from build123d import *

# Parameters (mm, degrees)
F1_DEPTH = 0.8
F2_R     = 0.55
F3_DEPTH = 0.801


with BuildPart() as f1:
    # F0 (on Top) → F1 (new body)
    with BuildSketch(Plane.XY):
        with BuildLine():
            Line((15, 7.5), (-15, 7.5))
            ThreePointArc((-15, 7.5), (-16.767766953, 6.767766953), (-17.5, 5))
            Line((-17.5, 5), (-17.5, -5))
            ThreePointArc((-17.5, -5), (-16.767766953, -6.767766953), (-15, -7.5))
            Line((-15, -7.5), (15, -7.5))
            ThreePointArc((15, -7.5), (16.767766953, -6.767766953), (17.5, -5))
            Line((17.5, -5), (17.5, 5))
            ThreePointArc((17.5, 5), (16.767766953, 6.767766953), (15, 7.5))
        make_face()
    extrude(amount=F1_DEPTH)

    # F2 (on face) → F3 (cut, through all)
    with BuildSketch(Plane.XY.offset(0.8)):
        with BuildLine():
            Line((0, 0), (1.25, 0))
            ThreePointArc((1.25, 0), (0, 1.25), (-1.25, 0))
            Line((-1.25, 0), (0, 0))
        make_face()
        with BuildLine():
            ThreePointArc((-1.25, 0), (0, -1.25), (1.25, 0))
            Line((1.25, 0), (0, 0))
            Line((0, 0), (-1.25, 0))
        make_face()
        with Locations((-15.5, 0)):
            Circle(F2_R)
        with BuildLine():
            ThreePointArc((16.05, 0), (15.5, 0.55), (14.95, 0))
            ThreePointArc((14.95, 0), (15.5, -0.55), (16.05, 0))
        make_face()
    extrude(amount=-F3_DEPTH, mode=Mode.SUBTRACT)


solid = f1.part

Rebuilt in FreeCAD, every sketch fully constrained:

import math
import FreeCAD as App
import Part
import Sketcher

doc = App.newDocument("Part")
body = doc.addObject("PartDesign::Body", "Body")

sketch1 = body.newObject("Sketcher::SketchObject", "Sketch")
sketch1.AttachmentSupport = (doc.getObject("XY_Plane"), [""])
sketch1.MapMode = "FlatFace"
sketch1.addGeometry([
    Part.LineSegment(App.Vector(15, 7.5, 0), App.Vector(-15, 7.5, 0)),
    Part.ArcOfCircle(Part.Circle(App.Vector(-15, 5, 0), App.Vector(0, 0, 1), 2.5), math.radians(90), math.radians(180)),
    Part.LineSegment(App.Vector(-17.5, 5, 0), App.Vector(-17.5, -5, 0)),
    Part.ArcOfCircle(Part.Circle(App.Vector(-15, -5, 0), App.Vector(0, 0, 1), 2.5), math.radians(180), math.radians(270)),
    Part.LineSegment(App.Vector(-15, -7.5, 0), App.Vector(15, -7.5, 0)),
    Part.ArcOfCircle(Part.Circle(App.Vector(15, -5, 0), App.Vector(0, 0, 1), 2.5), math.radians(-90), math.radians(0)),
    Part.LineSegment(App.Vector(17.5, -5, 0), App.Vector(17.5, 5, 0)),
    Part.ArcOfCircle(Part.Circle(App.Vector(15, 5, 0), App.Vector(0, 0, 1), 2.5), math.radians(0), math.radians(90)),
], False)
sketch1.addConstraint([
    Sketcher.Constraint("Tangent", 0, 2, 1, 1),
    Sketcher.Constraint("Tangent", 1, 2, 2, 1),
    Sketcher.Constraint("Tangent", 2, 2, 3, 1),
    Sketcher.Constraint("Tangent", 3, 2, 4, 1),
    Sketcher.Constraint("Tangent", 4, 2, 5, 1),
    Sketcher.Constraint("Tangent", 5, 2, 6, 1),
    Sketcher.Constraint("Tangent", 6, 2, 7, 1),
    Sketcher.Constraint("Tangent", 7, 2, 0, 1),
    Sketcher.Constraint("Horizontal", 0),
    Sketcher.Constraint("Vertical", 2),
    Sketcher.Constraint("Horizontal", 4),
    Sketcher.Constraint("Vertical", 6),
    Sketcher.Constraint("Equal", 1, 3),
    Sketcher.Constraint("Equal", 3, 5),
    Sketcher.Constraint("Equal", 5, 7),
    Sketcher.Constraint("Symmetric", 1, 3, 5, 3, -1, 1),
    Sketcher.Constraint("Radius", 1, 2.5),
    Sketcher.Constraint("DistanceX", 0, 2, 0, 1, 30.0),
    Sketcher.Constraint("DistanceY", 2, 2, 2, 1, 10.0),
])
pad1 = body.newObject("PartDesign::Pad", "Pad")
pad1.Profile = sketch1
pad1.Length = 0.8

sketch2 = body.newObject("Sketcher::SketchObject", "Sketch001")
sketch2.AttachmentSupport = (doc.getObject("XY_Plane"), [""])
sketch2.MapMode = "FlatFace"
sketch2.AttachmentOffset = App.Placement(App.Vector(0, 0, 0.8), App.Rotation())
sketch2.addGeometry([
    Part.Circle(App.Vector(0, 0, 0), App.Vector(0, 0, 1), 1.25),
    Part.Circle(App.Vector(-15.5, 0, 0), App.Vector(0, 0, 1), 0.55),
    Part.Circle(App.Vector(15.5, 0, 0), App.Vector(0, 0, 1), 0.55),
], False)
sketch2.addConstraint([
    Sketcher.Constraint("Coincident", 0, 3, -1, 1),
    Sketcher.Constraint("Equal", 1, 2),
    Sketcher.Constraint("Symmetric", 1, 3, 2, 3, -1, 1),
    Sketcher.Constraint("PointOnObject", 1, 3, -1),
    Sketcher.Constraint("Diameter", 0, 2.5),
    Sketcher.Constraint("Diameter", 1, 1.1),
    Sketcher.Constraint("DistanceX", 1, 3, 2, 3, 31.0),
])
pocket1 = body.newObject("PartDesign::Pocket", "Pocket")
pocket1.Profile = sketch2
pocket1.Type = "ThroughAll"

doc.recompute()
